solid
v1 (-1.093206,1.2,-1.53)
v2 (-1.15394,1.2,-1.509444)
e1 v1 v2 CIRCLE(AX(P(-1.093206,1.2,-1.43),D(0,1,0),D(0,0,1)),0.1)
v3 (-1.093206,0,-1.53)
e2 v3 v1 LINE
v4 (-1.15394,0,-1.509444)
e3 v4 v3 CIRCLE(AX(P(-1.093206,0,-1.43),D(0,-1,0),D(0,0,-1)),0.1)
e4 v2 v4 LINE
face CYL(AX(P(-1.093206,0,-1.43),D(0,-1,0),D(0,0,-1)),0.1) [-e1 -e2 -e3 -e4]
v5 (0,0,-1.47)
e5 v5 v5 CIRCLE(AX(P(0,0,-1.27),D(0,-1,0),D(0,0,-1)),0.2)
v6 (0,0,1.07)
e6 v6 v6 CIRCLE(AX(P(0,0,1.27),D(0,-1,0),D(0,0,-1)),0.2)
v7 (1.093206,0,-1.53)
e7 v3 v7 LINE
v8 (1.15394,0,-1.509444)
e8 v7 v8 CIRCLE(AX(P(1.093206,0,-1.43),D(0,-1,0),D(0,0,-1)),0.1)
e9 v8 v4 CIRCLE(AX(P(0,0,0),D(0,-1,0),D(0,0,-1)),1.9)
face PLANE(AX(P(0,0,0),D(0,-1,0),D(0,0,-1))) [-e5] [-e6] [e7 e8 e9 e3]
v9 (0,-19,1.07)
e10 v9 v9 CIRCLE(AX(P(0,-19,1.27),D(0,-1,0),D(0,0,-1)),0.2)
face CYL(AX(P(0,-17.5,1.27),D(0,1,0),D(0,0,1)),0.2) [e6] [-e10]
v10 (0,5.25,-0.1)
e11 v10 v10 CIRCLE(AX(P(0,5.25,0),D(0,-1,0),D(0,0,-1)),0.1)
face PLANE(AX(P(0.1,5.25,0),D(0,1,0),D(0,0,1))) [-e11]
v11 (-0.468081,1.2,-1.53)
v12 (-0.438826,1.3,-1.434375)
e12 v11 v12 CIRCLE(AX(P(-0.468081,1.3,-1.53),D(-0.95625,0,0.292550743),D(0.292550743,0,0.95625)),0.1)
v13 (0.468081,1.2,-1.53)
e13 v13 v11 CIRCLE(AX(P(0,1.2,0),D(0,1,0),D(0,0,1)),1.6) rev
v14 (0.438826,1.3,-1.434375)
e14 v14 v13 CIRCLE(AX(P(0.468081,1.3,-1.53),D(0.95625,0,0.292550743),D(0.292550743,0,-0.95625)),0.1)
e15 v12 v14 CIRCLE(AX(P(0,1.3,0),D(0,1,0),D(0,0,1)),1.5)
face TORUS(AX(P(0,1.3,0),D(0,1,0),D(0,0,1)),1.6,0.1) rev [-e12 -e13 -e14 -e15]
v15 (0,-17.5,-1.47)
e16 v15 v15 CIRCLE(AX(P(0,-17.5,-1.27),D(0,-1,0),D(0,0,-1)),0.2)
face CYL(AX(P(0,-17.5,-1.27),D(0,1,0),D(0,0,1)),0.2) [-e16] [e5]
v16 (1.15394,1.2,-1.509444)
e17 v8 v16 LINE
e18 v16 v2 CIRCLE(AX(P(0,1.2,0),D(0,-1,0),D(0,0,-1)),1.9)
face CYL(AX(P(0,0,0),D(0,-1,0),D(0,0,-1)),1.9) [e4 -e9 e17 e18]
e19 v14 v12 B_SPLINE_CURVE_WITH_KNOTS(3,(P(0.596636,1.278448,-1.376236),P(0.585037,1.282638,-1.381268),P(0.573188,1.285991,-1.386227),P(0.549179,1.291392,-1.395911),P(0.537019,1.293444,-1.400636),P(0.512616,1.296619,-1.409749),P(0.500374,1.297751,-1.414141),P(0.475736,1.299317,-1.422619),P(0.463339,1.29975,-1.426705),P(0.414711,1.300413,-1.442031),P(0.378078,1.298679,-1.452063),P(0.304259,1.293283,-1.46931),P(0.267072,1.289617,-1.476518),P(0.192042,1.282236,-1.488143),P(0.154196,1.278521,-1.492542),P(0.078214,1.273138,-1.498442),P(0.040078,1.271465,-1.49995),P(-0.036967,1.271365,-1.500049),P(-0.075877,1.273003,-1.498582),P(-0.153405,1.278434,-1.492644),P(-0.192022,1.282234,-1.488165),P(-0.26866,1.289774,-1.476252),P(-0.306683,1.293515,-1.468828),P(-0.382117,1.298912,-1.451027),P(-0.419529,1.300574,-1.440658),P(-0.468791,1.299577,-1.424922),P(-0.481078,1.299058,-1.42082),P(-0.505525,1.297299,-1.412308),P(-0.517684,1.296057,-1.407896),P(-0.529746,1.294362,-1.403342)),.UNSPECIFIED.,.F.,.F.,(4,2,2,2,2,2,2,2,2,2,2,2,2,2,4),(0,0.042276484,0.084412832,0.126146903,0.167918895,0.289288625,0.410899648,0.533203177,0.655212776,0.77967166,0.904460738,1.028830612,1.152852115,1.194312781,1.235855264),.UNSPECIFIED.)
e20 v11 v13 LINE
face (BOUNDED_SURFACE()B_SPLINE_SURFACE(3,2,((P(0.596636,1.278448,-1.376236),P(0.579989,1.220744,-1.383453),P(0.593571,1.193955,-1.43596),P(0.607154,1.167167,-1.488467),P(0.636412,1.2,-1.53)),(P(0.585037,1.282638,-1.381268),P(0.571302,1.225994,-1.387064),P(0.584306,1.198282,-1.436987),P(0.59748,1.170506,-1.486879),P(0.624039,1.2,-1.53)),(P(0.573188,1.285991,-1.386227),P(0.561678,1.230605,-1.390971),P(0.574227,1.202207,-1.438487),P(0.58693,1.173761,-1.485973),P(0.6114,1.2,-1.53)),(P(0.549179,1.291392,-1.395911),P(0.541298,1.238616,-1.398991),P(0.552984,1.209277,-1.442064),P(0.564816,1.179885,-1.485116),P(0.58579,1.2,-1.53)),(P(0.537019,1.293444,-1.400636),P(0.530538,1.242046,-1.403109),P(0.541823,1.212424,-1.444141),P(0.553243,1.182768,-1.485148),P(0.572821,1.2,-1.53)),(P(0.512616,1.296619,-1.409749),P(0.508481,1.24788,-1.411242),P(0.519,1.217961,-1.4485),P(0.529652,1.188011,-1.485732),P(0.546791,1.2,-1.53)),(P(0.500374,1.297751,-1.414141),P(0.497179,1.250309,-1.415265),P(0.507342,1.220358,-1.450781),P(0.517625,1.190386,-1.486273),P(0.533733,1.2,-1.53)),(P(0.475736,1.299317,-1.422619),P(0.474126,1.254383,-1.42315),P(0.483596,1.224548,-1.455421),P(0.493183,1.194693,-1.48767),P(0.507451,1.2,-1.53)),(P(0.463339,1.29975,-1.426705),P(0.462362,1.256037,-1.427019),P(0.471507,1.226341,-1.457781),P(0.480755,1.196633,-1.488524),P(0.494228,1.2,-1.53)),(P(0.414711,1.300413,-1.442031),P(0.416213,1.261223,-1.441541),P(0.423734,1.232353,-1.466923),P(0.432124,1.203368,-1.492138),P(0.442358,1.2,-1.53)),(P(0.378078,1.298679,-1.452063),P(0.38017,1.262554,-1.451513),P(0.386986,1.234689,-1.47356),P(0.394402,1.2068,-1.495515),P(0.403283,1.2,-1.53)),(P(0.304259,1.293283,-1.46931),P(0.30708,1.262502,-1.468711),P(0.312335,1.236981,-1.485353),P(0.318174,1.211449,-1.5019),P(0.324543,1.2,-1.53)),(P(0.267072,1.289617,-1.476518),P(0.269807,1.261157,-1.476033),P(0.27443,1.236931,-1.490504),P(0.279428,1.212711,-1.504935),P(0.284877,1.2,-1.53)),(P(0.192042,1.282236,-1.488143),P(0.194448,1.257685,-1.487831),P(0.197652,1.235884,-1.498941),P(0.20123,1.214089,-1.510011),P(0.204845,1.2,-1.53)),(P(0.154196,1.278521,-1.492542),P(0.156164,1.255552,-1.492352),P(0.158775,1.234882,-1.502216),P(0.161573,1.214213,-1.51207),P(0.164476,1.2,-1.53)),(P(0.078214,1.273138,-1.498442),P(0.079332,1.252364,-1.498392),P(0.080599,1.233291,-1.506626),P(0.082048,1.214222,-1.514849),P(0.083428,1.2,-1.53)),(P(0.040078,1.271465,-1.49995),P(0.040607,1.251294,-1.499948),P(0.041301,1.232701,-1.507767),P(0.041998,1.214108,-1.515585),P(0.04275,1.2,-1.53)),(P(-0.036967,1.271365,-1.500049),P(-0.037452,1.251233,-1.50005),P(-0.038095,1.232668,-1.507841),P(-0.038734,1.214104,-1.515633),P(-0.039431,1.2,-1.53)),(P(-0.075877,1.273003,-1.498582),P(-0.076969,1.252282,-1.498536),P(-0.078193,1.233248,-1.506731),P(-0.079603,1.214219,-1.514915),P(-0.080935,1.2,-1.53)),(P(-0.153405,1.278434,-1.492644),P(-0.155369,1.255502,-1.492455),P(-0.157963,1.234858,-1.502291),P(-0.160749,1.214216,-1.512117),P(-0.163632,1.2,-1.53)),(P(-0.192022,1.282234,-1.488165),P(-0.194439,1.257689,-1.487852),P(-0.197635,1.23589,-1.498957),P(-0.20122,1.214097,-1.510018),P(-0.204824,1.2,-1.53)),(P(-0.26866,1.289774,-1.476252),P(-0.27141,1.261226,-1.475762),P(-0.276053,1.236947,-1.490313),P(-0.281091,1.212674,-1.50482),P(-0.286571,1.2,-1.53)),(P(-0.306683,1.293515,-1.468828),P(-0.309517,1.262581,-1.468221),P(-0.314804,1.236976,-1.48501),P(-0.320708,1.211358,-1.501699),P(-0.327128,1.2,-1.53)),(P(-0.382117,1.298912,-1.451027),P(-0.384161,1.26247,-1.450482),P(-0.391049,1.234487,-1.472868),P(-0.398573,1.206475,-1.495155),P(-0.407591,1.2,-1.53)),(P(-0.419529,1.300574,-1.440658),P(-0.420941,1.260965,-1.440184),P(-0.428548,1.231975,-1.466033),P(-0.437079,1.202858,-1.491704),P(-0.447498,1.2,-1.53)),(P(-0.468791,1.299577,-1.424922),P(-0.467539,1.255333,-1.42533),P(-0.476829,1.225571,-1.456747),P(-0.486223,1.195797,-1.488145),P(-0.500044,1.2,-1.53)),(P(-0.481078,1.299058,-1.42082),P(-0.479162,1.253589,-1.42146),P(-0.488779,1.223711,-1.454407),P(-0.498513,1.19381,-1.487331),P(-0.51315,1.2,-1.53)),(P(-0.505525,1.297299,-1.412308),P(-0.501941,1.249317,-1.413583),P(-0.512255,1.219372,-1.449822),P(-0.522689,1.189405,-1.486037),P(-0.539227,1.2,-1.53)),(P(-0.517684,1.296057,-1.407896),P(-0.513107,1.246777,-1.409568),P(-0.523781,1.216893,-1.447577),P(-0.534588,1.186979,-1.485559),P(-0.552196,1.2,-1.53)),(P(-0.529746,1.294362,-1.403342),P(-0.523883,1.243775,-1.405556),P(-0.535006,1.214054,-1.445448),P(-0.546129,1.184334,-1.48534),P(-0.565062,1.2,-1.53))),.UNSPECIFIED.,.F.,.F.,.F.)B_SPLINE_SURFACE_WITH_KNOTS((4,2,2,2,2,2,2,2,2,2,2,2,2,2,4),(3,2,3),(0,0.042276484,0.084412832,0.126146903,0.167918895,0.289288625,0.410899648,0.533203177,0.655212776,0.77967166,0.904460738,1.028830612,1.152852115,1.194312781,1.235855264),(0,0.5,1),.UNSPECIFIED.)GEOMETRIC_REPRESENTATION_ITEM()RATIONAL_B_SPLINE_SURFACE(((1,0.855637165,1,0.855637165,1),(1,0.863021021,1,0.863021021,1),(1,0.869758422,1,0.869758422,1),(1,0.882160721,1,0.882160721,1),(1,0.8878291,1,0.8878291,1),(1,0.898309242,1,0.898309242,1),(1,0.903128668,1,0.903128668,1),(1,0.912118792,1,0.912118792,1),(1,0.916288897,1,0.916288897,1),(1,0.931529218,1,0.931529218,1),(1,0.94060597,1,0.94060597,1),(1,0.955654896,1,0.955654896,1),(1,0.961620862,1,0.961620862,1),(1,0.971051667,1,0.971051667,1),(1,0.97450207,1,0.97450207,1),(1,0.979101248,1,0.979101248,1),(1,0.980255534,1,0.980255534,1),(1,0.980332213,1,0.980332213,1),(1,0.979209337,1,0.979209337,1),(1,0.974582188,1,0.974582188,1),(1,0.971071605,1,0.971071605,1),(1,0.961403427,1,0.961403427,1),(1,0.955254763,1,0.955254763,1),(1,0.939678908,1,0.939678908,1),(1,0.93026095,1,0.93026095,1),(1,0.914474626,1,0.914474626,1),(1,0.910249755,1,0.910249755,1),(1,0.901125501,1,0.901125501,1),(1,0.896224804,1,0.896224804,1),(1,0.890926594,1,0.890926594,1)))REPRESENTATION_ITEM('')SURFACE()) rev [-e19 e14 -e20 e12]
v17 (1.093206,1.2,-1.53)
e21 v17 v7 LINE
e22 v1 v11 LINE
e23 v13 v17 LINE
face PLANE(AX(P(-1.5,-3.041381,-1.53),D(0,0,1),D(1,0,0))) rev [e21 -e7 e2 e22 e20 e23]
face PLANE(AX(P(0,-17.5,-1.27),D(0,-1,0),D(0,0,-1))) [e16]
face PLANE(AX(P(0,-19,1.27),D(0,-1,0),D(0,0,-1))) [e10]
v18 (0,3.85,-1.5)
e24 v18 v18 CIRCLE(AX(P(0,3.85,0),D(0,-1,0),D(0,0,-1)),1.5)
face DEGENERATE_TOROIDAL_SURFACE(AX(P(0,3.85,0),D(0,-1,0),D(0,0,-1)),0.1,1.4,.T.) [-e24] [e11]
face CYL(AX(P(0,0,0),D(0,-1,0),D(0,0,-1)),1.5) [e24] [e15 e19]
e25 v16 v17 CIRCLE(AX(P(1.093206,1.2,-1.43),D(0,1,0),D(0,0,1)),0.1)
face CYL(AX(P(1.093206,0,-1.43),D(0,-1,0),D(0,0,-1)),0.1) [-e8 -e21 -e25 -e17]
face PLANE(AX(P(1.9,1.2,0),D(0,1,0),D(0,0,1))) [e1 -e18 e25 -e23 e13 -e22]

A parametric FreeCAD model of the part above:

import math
import FreeCAD as App
import Part
import Sketcher
from FreeCAD import Vector
Q = App.Units.Quantity


def edges_at(feature, points):
    """Names of the edges that pass closest to the given points."""
    edges = feature.Shape.Edges
    near = lambda p: min(range(len(edges)), key=lambda i: edges[i].distToShape(Part.Vertex(*p))[0])
    return sorted({f"Edge{near(p) + 1}" for p in points})

doc = App.newDocument("Part")
body = doc.addObject("PartDesign::Body", "Body")

# Sketch on XY plane
sketch1 = body.newObject("Sketcher::SketchObject", "Sketch")
sketch1.AttachmentSupport = (doc.getObject("XY_Plane"), [""])
sketch1.MapMode = "FlatFace"
sketch1.addGeometry(Part.LineSegment(Vector(0, 5.25, 0), Vector(0, 0, 0)), False)
sketch1.addGeometry(Part.LineSegment(Vector(0, 0, 0), Vector(1.9, 0, 0)), False)
sketch1.addGeometry(Part.LineSegment(Vector(1.9, 0, 0), Vector(1.9, 1.2, 0)), False)
sketch1.addGeometry(Part.LineSegment(Vector(1.9, 1.2, 0), Vector(1.5, 1.2, 0)), False)
sketch1.addGeometry(Part.LineSegment(Vector(1.5, 1.2, 0), Vector(1.5, 3.85, 0)), False)
sketch1.addGeometry(Part.ArcOfCircle(Part.Circle(Vector(0.1, 3.85, 0), Vector(0, 0, 1), 1.4), math.radians(0), math.radians(90)), False)
sketch1.addGeometry(Part.LineSegment(Vector(0.1, 5.25, 0), Vector(0, 5.25, 0)), False)
sketch1.addConstraint(Sketcher.Constraint("Coincident", 0, 2, 1, 1))
sketch1.addConstraint(Sketcher.Constraint("Coincident", 1, 2, 2, 1))
sketch1.addConstraint(Sketcher.Constraint("Coincident", 2, 2, 3, 1))
sketch1.addConstraint(Sketcher.Constraint("Coincident", 3, 2, 4, 1))
sketch1.addConstraint(Sketcher.Constraint("Tangent", 4, 2, 5, 1))
sketch1.addConstraint(Sketcher.Constraint("Tangent", 5, 2, 6, 1))
sketch1.addConstraint(Sketcher.Constraint("Coincident", 6, 2, 0, 1))
sketch1.addConstraint(Sketcher.Constraint("Vertical", 0))
sketch1.addConstraint(Sketcher.Constraint("Horizontal", 1))
sketch1.addConstraint(Sketcher.Constraint("Vertical", 2))
sketch1.addConstraint(Sketcher.Constraint("Horizontal", 3))
sketch1.addConstraint(Sketcher.Constraint("Vertical", 4))
sketch1.addConstraint(Sketcher.Constraint("Horizontal", 6))
sketch1.addConstraint(Sketcher.Constraint("Coincident", 0, 2, -1, 1))
sketch1.addConstraint(Sketcher.Constraint("Radius", 5, Q("1.4 mm")))
sketch1.addConstraint(Sketcher.Constraint("DistanceX", 1, 1, 1, 2, Q("1.9 mm")))
sketch1.addConstraint(Sketcher.Constraint("DistanceX", 3, 2, 3, 1, Q("0.4 mm")))
sketch1.addConstraint(Sketcher.Constraint("DistanceY", 2, 1, 2, 2, Q("1.2 mm")))
sketch1.addConstraint(Sketcher.Constraint("DistanceY", 0, 2, 0, 1, Q("5.25 mm")))
revolution = body.newObject("PartDesign::Revolution", "Revolution")
revolution.Profile = sketch1
revolution.ReferenceAxis = (sketch1, ["V_Axis"])
revolution.Angle = 360

# Sketch on XZ plane
sketch2 = body.newObject("Sketcher::SketchObject", "Sketch001")
sketch2.AttachmentSupport = (doc.getObject("XZ_Plane"), [""])
sketch2.MapMode = "FlatFace"
sketch2.AttachmentOffset = App.Placement(Vector(0, 0, -1.2), App.Rotation())
sketch2.addGeometry(Part.LineSegment(Vector(-1.5, -2.03, 0), Vector(-1.5, -1.53, 0)), False)
sketch2.addGeometry(Part.LineSegment(Vector(-1.5, -1.53, 0), Vector(1.5, -1.53, 0)), False)
sketch2.addGeometry(Part.LineSegment(Vector(1.5, -1.53, 0), Vector(1.5, -2.03, 0)), False)
sketch2.addGeometry(Part.LineSegment(Vector(1.5, -2.03, 0), Vector(-1.5, -2.03, 0)), False)
sketch2.addConstraint(Sketcher.Constraint("Coincident", 0, 2, 1, 1))
sketch2.addConstraint(Sketcher.Constraint("Coincident", 1, 2, 2, 1))
sketch2.addConstraint(Sketcher.Constraint("Coincident", 2, 2, 3, 1))
sketch2.addConstraint(Sketcher.Constraint("Coincident", 3, 2, 0, 1))
sketch2.addConstraint(Sketcher.Constraint("Vertical", 0))
sketch2.addConstraint(Sketcher.Constraint("Horizontal", 1))
sketch2.addConstraint(Sketcher.Constraint("Vertical", 2))
sketch2.addConstraint(Sketcher.Constraint("Horizontal", 3))
sketch2.addConstraint(Sketcher.Constraint("DistanceX", 1, 1, 1, 2, Q("3 mm")))
sketch2.addConstraint(Sketcher.Constraint("DistanceY", 0, 1, 0, 2, Q("0.5 mm")))
sketch2.addConstraint(Sketcher.Constraint("DistanceX", 0, 2, -1, 1, Q("1.5 mm")))
sketch2.addConstraint(Sketcher.Constraint("DistanceY", 0, 2, -1, 1, Q("1.53 mm")))
pocket1 = body.newObject("PartDesign::Pocket", "Pocket")
pocket1.Profile = sketch2
pocket1.Length = 1.2
pocket1.Reversed = True
doc.recompute()

fillet = body.newObject("PartDesign::Fillet", "Fillet")
fillet.Base = (pocket1, edges_at(pocket1, [(1.127, 0.6, -1.53), (-1.127, 0.6, -1.53), (-1.5, 1.2, 0)]))
fillet.Radius = 0.1

# Sketch on XZ plane
sketch3 = body.newObject("Sketcher::SketchObject", "Sketch002")
sketch3.AttachmentSupport = (doc.getObject("XZ_Plane"), [""])
sketch3.MapMode = "FlatFace"
sketch3.addGeometry(Part.Circle(Vector(0, 1.27, 0), Vector(0, 0, 1), 0.2), False)
sketch3.addGeometry(Part.Circle(Vector(0, -1.27, 0), Vector(0, 0, 1), 0.2), False)
sketch3.addConstraint(Sketcher.Constraint("Equal", 0, 1))
sketch3.addConstraint(Sketcher.Constraint("Symmetric", 0, 3, 1, 3, -1, 1))
sketch3.addConstraint(Sketcher.Constraint("PointOnObject", 0, 3, -2))
sketch3.addConstraint(Sketcher.Constraint("Diameter", 0, Q("0.4 mm")))
sketch3.addConstraint(Sketcher.Constraint("DistanceY", -1, 1, 0, 3, Q("1.27 mm")))
pad1 = body.newObject("PartDesign::Pad", "Pad")
pad1.Profile = sketch3
pad1.Length = 17.5

# Sketch on XZ plane
sketch4 = body.newObject("Sketcher::SketchObject", "Sketch003")
sketch4.AttachmentSupport = (doc.getObject("XZ_Plane"), [""])
sketch4.MapMode = "FlatFace"
sketch4.AttachmentOffset = App.Placement(Vector(0, 0, 17.5), App.Rotation())
sketch4.addGeometry(Part.Circle(Vector(0, 1.27, 0), Vector(0, 0, 1), 0.2), False)
sketch4.addConstraint(Sketcher.Constraint("PointOnObject", 0, 3, -2))
sketch4.addConstraint(Sketcher.Constraint("Diameter", 0, Q("0.4 mm")))
sketch4.addConstraint(Sketcher.Constraint("DistanceY", -1, 1, 0, 3, Q("1.27 mm")))
pad2 = body.newObject("PartDesign::Pad", "Pad001")
pad2.Profile = sketch4
pad2.Length = 1.5

doc.recompute()
